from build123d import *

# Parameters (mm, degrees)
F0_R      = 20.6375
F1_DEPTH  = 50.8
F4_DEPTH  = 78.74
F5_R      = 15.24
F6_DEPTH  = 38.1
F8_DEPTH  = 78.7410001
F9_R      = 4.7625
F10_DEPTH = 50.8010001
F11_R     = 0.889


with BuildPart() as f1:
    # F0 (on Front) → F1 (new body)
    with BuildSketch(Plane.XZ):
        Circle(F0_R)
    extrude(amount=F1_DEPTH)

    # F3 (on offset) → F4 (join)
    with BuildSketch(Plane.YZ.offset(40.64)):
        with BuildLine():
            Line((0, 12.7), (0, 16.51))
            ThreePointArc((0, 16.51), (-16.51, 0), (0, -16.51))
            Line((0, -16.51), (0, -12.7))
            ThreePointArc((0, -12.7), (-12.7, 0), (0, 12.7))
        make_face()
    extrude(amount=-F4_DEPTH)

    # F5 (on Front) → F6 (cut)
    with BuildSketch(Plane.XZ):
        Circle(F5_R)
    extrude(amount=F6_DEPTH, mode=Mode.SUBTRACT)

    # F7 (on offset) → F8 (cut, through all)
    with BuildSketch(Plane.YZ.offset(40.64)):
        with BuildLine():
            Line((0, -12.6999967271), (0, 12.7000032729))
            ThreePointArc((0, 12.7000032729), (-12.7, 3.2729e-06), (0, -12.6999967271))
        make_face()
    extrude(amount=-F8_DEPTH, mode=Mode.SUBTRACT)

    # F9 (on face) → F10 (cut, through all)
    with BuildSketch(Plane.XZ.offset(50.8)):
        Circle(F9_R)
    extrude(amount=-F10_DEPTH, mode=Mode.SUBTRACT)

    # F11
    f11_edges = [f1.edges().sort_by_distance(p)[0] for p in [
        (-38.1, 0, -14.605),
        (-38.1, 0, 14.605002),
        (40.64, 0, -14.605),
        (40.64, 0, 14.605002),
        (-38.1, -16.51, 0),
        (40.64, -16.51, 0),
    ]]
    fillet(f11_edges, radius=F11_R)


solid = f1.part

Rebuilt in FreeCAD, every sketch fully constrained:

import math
import FreeCAD as App
import Part
import Sketcher

V = App.Vector
Q = App.Units.Quantity


def edges_at(feature, points):
    """Names of the edges that pass closest to the given points."""
    edges = feature.Shape.Edges
    near = lambda p: min(range(len(edges)), key=lambda i: edges[i].distToShape(Part.Vertex(*p))[0])
    return sorted({f"Edge{near(p) + 1}" for p in points})

doc = App.newDocument("Part")
params = doc.addObject("Spreadsheet::Sheet", "Params")
for row, (alias, value) in enumerate([
    ("sketch1_diameter", "1.625 in"),
    ("pad1_length", "2 in"),
    ("sketch2_radius", "0.5 in"),
    ("sketch2_radius2", "0.65 in"),
    ("pad2_length", "3.1 in"),
    ("sketch3_diameter", "1.2 in"),
    ("pocket1_length", "1.5 in"),
    ("sketch4_radius", "0.5 in"),
    ("sketch5_diameter", "0.375 in"),
    ("fillet_radius", "0.035 in"),
], start=1):
    params.set(f"A{row}", alias)
    params.set(f"B{row}", "=" + value)
    params.setAlias(f"B{row}", alias)

body = doc.addObject("PartDesign::Body", "Body")

# Sketch on XZ plane
sketch1 = body.newObject("Sketcher::SketchObject", "Sketch")
sketch1.AttachmentSupport = (doc.getObject("XZ_Plane"), [""])
sketch1.MapMode = "FlatFace"
sketch1.addGeometry(Part.Circle(V(0, 0, 0), V(0, 0, 1), 20.6375), False)
sketch1.addConstraint(Sketcher.Constraint("Coincident", 0, 3, -1, 1))
sketch1.addConstraint(Sketcher.Constraint("Diameter", 0, Q("1.625 in")))
sketch1.setExpression("Constraints[1]", "Params.sketch1_diameter")
pad1 = body.newObject("PartDesign::Pad", "Pad")
pad1.Profile = sketch1
pad1.setExpression("Length", "Params.pad1_length")

# Sketch on YZ plane
sketch2 = body.newObject("Sketcher::SketchObject", "Sketch001")
sketch2.AttachmentSupport = (doc.getObject("YZ_Plane"), [""])
sketch2.MapMode = "FlatFace"
sketch2.AttachmentOffset = App.Placement(V(0, 0, 1.6 * 25.4), App.Rotation())
sketch2.addGeometry(Part.LineSegment(V(0, 12.7, 0), V(0, 16.51, 0)), False)
sketch2.addGeometry(Part.ArcOfCircle(Part.Circle(V(0, 0, 0), V(0, 0, 1), 16.51), math.radians(90), math.radians(270)), False)
sketch2.addGeometry(Part.LineSegment(V(0, -16.51, 0), V(0, -12.7, 0)), False)
sketch2.addGeometry(Part.ArcOfCircle(Part.Circle(V(0, 0, 0), V(0, 0, 1), 12.7), math.radians(90), math.radians(270)), False)
sketch2.addConstraint(Sketcher.Constraint("Coincident", 0, 2, 1, 1))
sketch2.addConstraint(Sketcher.Constraint("Coincident", 1, 2, 2, 1))
sketch2.addConstraint(Sketcher.Constraint("Coincident", 2, 2, 3, 2))
sketch2.addConstraint(Sketcher.Constraint("Coincident", 3, 1, 0, 1))
sketch2.addConstraint(Sketcher.Constraint("Vertical", 0))
sketch2.addConstraint(Sketcher.Constraint("Vertical", 2))
sketch2.addConstraint(Sketcher.Constraint("Coincident", 1, 3, -1, 1))
sketch2.addConstraint(Sketcher.Constraint("Coincident", 3, 3, -1, 1))
sketch2.addConstraint(Sketcher.Constraint("PointOnObject", 0, 2, -2))
sketch2.addConstraint(Sketcher.Constraint("PointOnObject", 1, 2, -2))
sketch2.addConstraint(Sketcher.Constraint("Radius", 3, Q("0.5 in")))
sketch2.addConstraint(Sketcher.Constraint("Radius", 1, Q("0.65 in")))
sketch2.setExpression("Constraints[10]", "Params.sketch2_radius")
sketch2.setExpression("Constraints[11]", "Params.sketch2_radius2")
pad2 = body.newObject("PartDesign::Pad", "Pad001")
pad2.Profile = sketch2
pad2.setExpression("Length", "Params.pad2_length")
pad2.Reversed = True

# Sketch on XZ plane
sketch3 = body.newObject("Sketcher::SketchObject", "Sketch002")
sketch3.AttachmentSupport = (doc.getObject("XZ_Plane"), [""])
sketch3.MapMode = "FlatFace"
sketch3.addGeometry(Part.Circle(V(0, 0, 0), V(0, 0, 1), 15.24), False)
sketch3.addConstraint(Sketcher.Constraint("Coincident", 0, 3, -1, 1))
sketch3.addConstraint(Sketcher.Constraint("Diameter", 0, Q("1.2 in")))
sketch3.setExpression("Constraints[1]", "Params.sketch3_diameter")
pocket1 = body.newObject("PartDesign::Pocket", "Pocket")
pocket1.Profile = sketch3
pocket1.setExpression("Length", "Params.pocket1_length")
pocket1.Reversed = True

# Sketch on YZ plane
sketch4 = body.newObject("Sketcher::SketchObject", "Sketch003")
sketch4.AttachmentSupport = (doc.getObject("YZ_Plane"), [""])
sketch4.MapMode = "FlatFace"
sketch4.AttachmentOffset = App.Placement(V(0, 0, 1.6 * 25.4), App.Rotation())
sketch4.addGeometry(Part.LineSegment(V(0, -12.699997, 0), V(0, 12.700003, 0)), False)
sketch4.addGeometry(Part.ArcOfCircle(Part.Circle(V(0, 0.000003, 0), V(0, 0, 1), 12.7), math.radians(90), math.radians(270)), False)
sketch4.addConstraint(Sketcher.Constraint("Coincident", 0, 1, 1, 2))
sketch4.addConstraint(Sketcher.Constraint("Coincident", 1, 1, 0, 2))
sketch4.addConstraint(Sketcher.Constraint("Vertical", 0))
sketch4.addConstraint(Sketcher.Constraint("Coincident", 1, 3, -1, 1))
sketch4.addConstraint(Sketcher.Constraint("PointOnObject", 0, 1, -2))
sketch4.addConstraint(Sketcher.Constraint("Radius", 1, Q("0.5 in")))
sketch4.setExpression("Constraints[5]", "Params.sketch4_radius")
pocket2 = body.newObject("PartDesign::Pocket", "Pocket001")
pocket2.Profile = sketch4
pocket2.Type = "ThroughAll"

# Sketch on XZ plane
sketch5 = body.newObject("Sketcher::SketchObject", "Sketch004")
sketch5.AttachmentSupport = (doc.getObject("XZ_Plane"), [""])
sketch5.MapMode = "FlatFace"
sketch5.AttachmentOffset = App.Placement(V(0, 0, 2 * 25.4), App.Rotation())
sketch5.addGeometry(Part.Circle(V(0, 0, 0), V(0, 0, 1), 4.7625), False)
sketch5.addConstraint(Sketcher.Constraint("Coincident", 0, 3, -1, 1))
sketch5.addConstraint(Sketcher.Constraint("Diameter", 0, Q("0.375 in")))
sketch5.setExpression("Constraints[1]", "Params.sketch5_diameter")
pocket3 = body.newObject("PartDesign::Pocket", "Pocket002")
pocket3.Profile = sketch5
pocket3.Type = "ThroughAll"
doc.recompute()

fillet = body.newObject("PartDesign::Fillet", "Fillet")
fillet.Base = (pocket3, edges_at(pocket3, [
    (-38.1, 0, -14.605),
    (-38.1, 0, 14.605),
    (40.64, 0, -14.605),
    (40.64, 0, 14.605),
    (-38.1, -16.51, 0),
    (40.64, -16.51, 0),
]))
fillet.setExpression("Radius", "Params.fillet_radius")

doc.recompute()
